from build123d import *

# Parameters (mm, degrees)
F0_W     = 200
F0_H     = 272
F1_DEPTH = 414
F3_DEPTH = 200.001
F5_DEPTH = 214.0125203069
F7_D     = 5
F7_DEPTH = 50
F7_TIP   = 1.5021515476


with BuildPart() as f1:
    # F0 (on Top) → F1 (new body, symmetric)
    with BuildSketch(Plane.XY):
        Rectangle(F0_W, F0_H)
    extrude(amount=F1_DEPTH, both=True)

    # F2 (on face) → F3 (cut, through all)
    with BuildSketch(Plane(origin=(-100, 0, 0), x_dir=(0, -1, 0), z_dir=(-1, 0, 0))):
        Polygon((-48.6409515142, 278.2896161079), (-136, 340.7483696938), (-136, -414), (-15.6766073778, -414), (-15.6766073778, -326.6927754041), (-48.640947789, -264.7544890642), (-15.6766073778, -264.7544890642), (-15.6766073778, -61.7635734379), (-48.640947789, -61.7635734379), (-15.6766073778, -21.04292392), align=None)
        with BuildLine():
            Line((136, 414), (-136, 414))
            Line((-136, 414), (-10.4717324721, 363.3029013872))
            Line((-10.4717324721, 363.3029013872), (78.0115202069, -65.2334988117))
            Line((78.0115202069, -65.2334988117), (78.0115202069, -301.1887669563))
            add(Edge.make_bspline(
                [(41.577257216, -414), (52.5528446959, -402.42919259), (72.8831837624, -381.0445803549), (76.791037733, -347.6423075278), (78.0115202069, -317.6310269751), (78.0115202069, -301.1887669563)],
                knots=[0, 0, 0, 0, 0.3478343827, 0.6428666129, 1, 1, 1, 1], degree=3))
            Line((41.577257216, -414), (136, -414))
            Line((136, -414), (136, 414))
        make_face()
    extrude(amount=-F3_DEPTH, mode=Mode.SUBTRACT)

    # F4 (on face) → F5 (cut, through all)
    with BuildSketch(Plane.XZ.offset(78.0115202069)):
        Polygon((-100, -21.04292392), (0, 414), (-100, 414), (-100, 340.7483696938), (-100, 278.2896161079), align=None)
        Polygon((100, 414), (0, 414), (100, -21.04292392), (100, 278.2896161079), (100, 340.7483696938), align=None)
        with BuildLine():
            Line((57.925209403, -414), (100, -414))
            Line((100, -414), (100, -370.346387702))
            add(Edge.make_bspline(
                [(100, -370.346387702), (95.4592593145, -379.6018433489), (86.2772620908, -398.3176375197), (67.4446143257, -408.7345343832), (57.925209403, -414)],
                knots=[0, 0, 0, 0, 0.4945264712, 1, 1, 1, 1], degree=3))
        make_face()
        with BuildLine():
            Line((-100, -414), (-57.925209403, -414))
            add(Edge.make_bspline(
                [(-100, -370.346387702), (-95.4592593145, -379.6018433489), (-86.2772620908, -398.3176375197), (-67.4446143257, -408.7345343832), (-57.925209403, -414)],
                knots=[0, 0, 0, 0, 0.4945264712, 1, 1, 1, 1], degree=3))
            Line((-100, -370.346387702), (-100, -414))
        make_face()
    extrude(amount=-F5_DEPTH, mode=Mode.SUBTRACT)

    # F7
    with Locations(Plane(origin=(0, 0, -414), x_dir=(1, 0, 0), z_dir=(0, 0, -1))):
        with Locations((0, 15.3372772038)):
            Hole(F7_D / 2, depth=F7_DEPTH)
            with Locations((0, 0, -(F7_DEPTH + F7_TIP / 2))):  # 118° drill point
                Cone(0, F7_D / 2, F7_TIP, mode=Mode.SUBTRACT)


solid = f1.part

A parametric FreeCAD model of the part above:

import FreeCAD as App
import Part
import Sketcher
Q = App.Units.Quantity

doc = App.newDocument("Part")
body = doc.addObject("PartDesign::Body", "Body")

sketch1 = doc.addObject("Sketcher::SketchObject", "Sketch")
body.addObject(sketch1)
sketch1.AttachmentSupport = (doc.XY_Plane, [""])
sketch1.MapMode = "FlatFace"
sketch1.addGeometry([
    Part.LineSegment(App.Vector(-100, 136, 0), App.Vector(-100, -136, 0)),
    Part.LineSegment(App.Vector(-100, -136, 0), App.Vector(100, -136, 0)),
    Part.LineSegment(App.Vector(100, -136, 0), App.Vector(100, 136, 0)),
    Part.LineSegment(App.Vector(100, 136, 0), App.Vector(-100, 136, 0)),
], False)
sketch1.addConstraint([
    Sketcher.Constraint("Coincident", 0, 2, 1, 1),
    Sketcher.Constraint("Coincident", 1, 2, 2, 1),
    Sketcher.Constraint("Coincident", 2, 2, 3, 1),
    Sketcher.Constraint("Coincident", 3, 2, 0, 1),
    Sketcher.Constraint("Vertical", 0),
    Sketcher.Constraint("Horizontal", 1),
    Sketcher.Constraint("Vertical", 2),
    Sketcher.Constraint("Horizontal", 3),
    Sketcher.Constraint("Symmetric", 0, 2, 2, 2, -1, 1),
    Sketcher.Constraint("DistanceX", 1, 1, 1, 2, Q("200 mm")),
    Sketcher.Constraint("DistanceY", 0, 2, 0, 1, Q("272 mm")),
])
pad1 = doc.addObject("PartDesign::Pad", "Pad")
body.addObject(pad1)
pad1.Profile = sketch1
pad1.Length = 828
pad1.Midplane = True

sketch2 = doc.addObject("Sketcher::SketchObject", "Sketch001")
body.addObject(sketch2)
sketch2.AttachmentSupport = (doc.YZ_Plane, [""])
sketch2.MapMode = "FlatFace"
sketch2.AttachmentOffset = App.Placement(App.Vector(0, 0, -100), App.Rotation())
sketch2.addGeometry([
    Part.LineSegment(App.Vector(48.640952, 278.289616, 0), App.Vector(136, 340.74837, 0)),
    Part.LineSegment(App.Vector(136, 340.74837, 0), App.Vector(136, -414, 0)),
    Part.LineSegment(App.Vector(136, -414, 0), App.Vector(15.676607, -414, 0)),
    Part.LineSegment(App.Vector(15.676607, -414, 0), App.Vector(15.676607, -326.692775, 0)),
    Part.LineSegment(App.Vector(15.676607, -326.692775, 0), App.Vector(48.640948, -264.754489, 0)),
    Part.LineSegment(App.Vector(48.640948, -264.754489, 0), App.Vector(15.676607, -264.754489, 0)),
    Part.LineSegment(App.Vector(15.676607, -264.754489, 0), App.Vector(15.676607, -61.763573, 0)),
    Part.LineSegment(App.Vector(15.676607, -61.763573, 0), App.Vector(48.640948, -61.763573, 0)),
    Part.LineSegment(App.Vector(48.640948, -61.763573, 0), App.Vector(15.676607, -21.042924, 0)),
    Part.LineSegment(App.Vector(15.676607, -21.042924, 0), App.Vector(48.640952, 278.289616, 0)),
    Part.LineSegment(App.Vector(-136, 414, 0), App.Vector(136, 414, 0)),
    Part.LineSegment(App.Vector(136, 414, 0), App.Vector(10.471732, 363.302901, 0)),
    Part.LineSegment(App.Vector(10.471732, 363.302901, 0), App.Vector(-78.01152, -65.233499, 0)),
    Part.LineSegment(App.Vector(-78.01152, -65.233499, 0), App.Vector(-78.01152, -301.188767, 0)),
    Part.BSplineCurve([App.Vector(-41.577257, -414, 0), App.Vector(-52.552845, -402.429193, 0), App.Vector(-72.883184, -381.04458, 0), App.Vector(-76.791038, -347.642308, 0), App.Vector(-78.01152, -317.631027, 0), App.Vector(-78.01152, -301.188767, 0)], [4, 1, 1, 4], [0, 0.347834383, 0.642866613, 1], False, 3, [1, 1, 1, 1, 1, 1], False),
    Part.LineSegment(App.Vector(-41.577257, -414, 0), App.Vector(-136, -414, 0)),
    Part.LineSegment(App.Vector(-136, -414, 0), App.Vector(-136, 414, 0)),
], False)
sketch2.addConstraint([
    Sketcher.Constraint("Block", 14),
    Sketcher.Constraint("Coincident", 0, 2, 1, 1),
    Sketcher.Constraint("Coincident", 1, 2, 2, 1),
    Sketcher.Constraint("Coincident", 2, 2, 3, 1),
    Sketcher.Constraint("Coincident", 3, 2, 4, 1),
    Sketcher.Constraint("Coincident", 4, 2, 5, 1),
    Sketcher.Constraint("Coincident", 5, 2, 6, 1),
    Sketcher.Constraint("Coincident", 6, 2, 7, 1),
    Sketcher.Constraint("Coincident", 7, 2, 8, 1),
    Sketcher.Constraint("Coincident", 8, 2, 9, 1),
    Sketcher.Constraint("Coincident", 9, 2, 0, 1),
    Sketcher.Constraint("Coincident", 10, 2, 11, 1),
    Sketcher.Constraint("Coincident", 11, 2, 12, 1),
    Sketcher.Constraint("Coincident", 12, 2, 13, 1),
    Sketcher.Constraint("Coincident", 13, 2, 14, 2),
    Sketcher.Constraint("Coincident", 14, 1, 15, 1),
    Sketcher.Constraint("Coincident", 15, 2, 16, 1),
    Sketcher.Constraint("Coincident", 16, 2, 10, 1),
    Sketcher.Constraint("Vertical", 1),
    Sketcher.Constraint("Horizontal", 2),
    Sketcher.Constraint("Vertical", 3),
    Sketcher.Constraint("Horizontal", 5),
    Sketcher.Constraint("Vertical", 6),
    Sketcher.Constraint("Horizontal", 7),
    Sketcher.Constraint("Horizontal", 10),
    Sketcher.Constraint("Vertical", 13),
    Sketcher.Constraint("Horizontal", 15),
    Sketcher.Constraint("Vertical", 16),
    Sketcher.Constraint("Symmetric", 10, 2, 15, 2, -1, 1),
    Sketcher.Constraint("Symmetric", 1, 2, 16, 2, -1, 1),
    Sketcher.Constraint("Vertical", 3, 2, 5, 2),
    Sketcher.Constraint("Vertical", 4, 2, 7, 2),
    Sketcher.Constraint("Vertical", 6, 2, 8, 2),
    Sketcher.Constraint("DistanceX", 10, 1, 10, 2, Q("272 mm")),
    Sketcher.Constraint("DistanceX", 5, 2, 5, 1, Q("32.96434 mm")),
    Sketcher.Constraint("DistanceY", 1, 2, 1, 1, Q("754.74837 mm")),
    Sketcher.Constraint("DistanceY", 13, 2, 13, 1, Q("235.955268 mm")),
    Sketcher.Constraint("DistanceY", -1, 1, 11, 2, Q("363.302901 mm")),
    Sketcher.Constraint("DistanceY", 3, 2, 6, 2, Q("264.929202 mm")),
    Sketcher.Constraint("Distance", 8, Q("52.391021 mm")),
    Sketcher.Constraint("Distance", 9, Q("301.142188 mm")),
    Sketcher.Constraint("Distance", 11, Q("135.379252 mm")),
    Sketcher.Constraint("DistanceX", 2, 2, 2, 1, Q("120.323393 mm")),
    Sketcher.Constraint("DistanceY", 3, 1, 3, 2, Q("87.307225 mm")),
    Sketcher.Constraint("DistanceY", 6, 1, 6, 2, Q("202.990916 mm")),
    Sketcher.Constraint("DistanceX", -1, 1, 9, 2, Q("48.640952 mm")),
])
pocket1 = doc.addObject("PartDesign::Pocket", "Pocket")
body.addObject(pocket1)
pocket1.Profile = sketch2
pocket1.Type = "ThroughAll"
pocket1.Reversed = True

sketch3 = doc.addObject("Sketcher::SketchObject", "Sketch002")
body.addObject(sketch3)
sketch3.AttachmentSupport = (doc.XZ_Plane, [""])
sketch3.MapMode = "FlatFace"
sketch3.AttachmentOffset = App.Placement(App.Vector(0, 0, 78.01152), App.Rotation())
sketch3.addGeometry([
    Part.LineSegment(App.Vector(-100, -21.042924, 0), App.Vector(0, 414, 0)),
    Part.LineSegment(App.Vector(0, 414, 0), App.Vector(-100, 414, 0)),
    Part.LineSegment(App.Vector(-100, 414, 0), App.Vector(-100, -21.042924, 0)),
    Part.LineSegment(App.Vector(100, 414, 0), App.Vector(0, 414, 0)),
    Part.LineSegment(App.Vector(0, 414, 0), App.Vector(100, -21.042924, 0)),
    Part.LineSegment(App.Vector(100, -21.042924, 0), App.Vector(100, 414, 0)),
    Part.LineSegment(App.Vector(57.925209, -414, 0), App.Vector(100, -414, 0)),
    Part.LineSegment(App.Vector(100, -414, 0), App.Vector(100, -370.346388, 0)),
    Part.BSplineCurve([App.Vector(100, -370.346388, 0), App.Vector(95.459259, -379.601843, 0), App.Vector(86.277262, -398.317638, 0), App.Vector(67.444614, -408.734534, 0), App.Vector(57.925209, -414, 0)], [4, 1, 4], [0, 0.494526471, 1], False, 3, [1, 1, 1, 1, 1], False),
    Part.LineSegment(App.Vector(-100, -414, 0), App.Vector(-57.925209, -414, 0)),
    Part.BSplineCurve([App.Vector(-100, -370.346388, 0), App.Vector(-95.459259, -379.601843, 0), App.Vector(-86.277262, -398.317638, 0), App.Vector(-67.444614, -408.734534, 0), App.Vector(-57.925209, -414, 0)], [4, 1, 4], [0, 0.494526471, 1], False, 3, [1, 1, 1, 1, 1], False),
    Part.LineSegment(App.Vector(-100, -370.346388, 0), App.Vector(-100, -414, 0)),
], False)
sketch3.addConstraint([
    Sketcher.Constraint("Block", 8),
    Sketcher.Constraint("Block", 10),
    Sketcher.Constraint("Coincident", 0, 2, 1, 1),
    Sketcher.Constraint("Coincident", 1, 2, 2, 1),
    Sketcher.Constraint("Coincident", 2, 2, 0, 1),
    Sketcher.Constraint("Coincident", 3, 2, 4, 1),
    Sketcher.Constraint("Coincident", 4, 2, 5, 1),
    Sketcher.Constraint("Coincident", 5, 2, 3, 1),
    Sketcher.Constraint("Coincident", 6, 2, 7, 1),
    Sketcher.Constraint("Coincident", 7, 2, 8, 1),
    Sketcher.Constraint("Coincident", 8, 2, 6, 1),
    Sketcher.Constraint("Coincident", 9, 2, 10, 2),
    Sketcher.Constraint("Coincident", 10, 1, 11, 1),
    Sketcher.Constraint("Coincident", 11, 2, 9, 1),
    Sketcher.Constraint("Horizontal", 1),
    Sketcher.Constraint("Vertical", 2),
    Sketcher.Constraint("Horizontal", 3),
    Sketcher.Constraint("Vertical", 5),
    Sketcher.Constraint("Horizontal", 6),
    Sketcher.Constraint("Vertical", 7),
    Sketcher.Constraint("Horizontal", 9),
    Sketcher.Constraint("Vertical", 11),
    Sketcher.Constraint("Coincident", 3, 2, 0, 2),
    Sketcher.Constraint("Symmetric", 1, 2, 6, 2, -1, 1),
    Sketcher.Constraint("Symmetric", 2, 2, 4, 2, -2),
    Sketcher.Constraint("PointOnObject", 0, 2, -2),
    Sketcher.Constraint("Distance", 0, Q("446.388111 mm")),
])
pocket2 = doc.addObject("PartDesign::Pocket", "Pocket001")
body.addObject(pocket2)
pocket2.Profile = sketch3
pocket2.Type = "ThroughAll"

sketch4 = doc.addObject("Sketcher::SketchObject", "Sketch003")
body.addObject(sketch4)
sketch4.AttachmentSupport = (doc.XY_Plane, [""])
sketch4.MapMode = "FlatFace"
sketch4.AttachmentOffset = App.Placement(App.Vector(0, 0, -414), App.Rotation())
sketch4.addGeometry(Part.Circle(App.Vector(0, -15.3, 0), App.Vector(0, 0, 1), 2.5), False)
sketch4.addConstraint([
    Sketcher.Constraint("PointOnObject", 0, 3, -2),
    Sketcher.Constraint("Diameter", 0, Q("5 mm")),
    Sketcher.Constraint("DistanceY", 0, 3, -1, 1, Q("15.337277 mm")),
])
doc.recompute()
hole = doc.addObject("PartDesign::Hole", "Hole")
body.addObject(hole)
hole.Profile = sketch4
hole.ThreadType = "None"
hole.Diameter = 5
hole.DepthType = "Dimension"
hole.Depth = 50
hole.DrillPoint = "Angled"
hole.DrillPointAngle = 118
hole.Reversed = True

doc.recompute()
